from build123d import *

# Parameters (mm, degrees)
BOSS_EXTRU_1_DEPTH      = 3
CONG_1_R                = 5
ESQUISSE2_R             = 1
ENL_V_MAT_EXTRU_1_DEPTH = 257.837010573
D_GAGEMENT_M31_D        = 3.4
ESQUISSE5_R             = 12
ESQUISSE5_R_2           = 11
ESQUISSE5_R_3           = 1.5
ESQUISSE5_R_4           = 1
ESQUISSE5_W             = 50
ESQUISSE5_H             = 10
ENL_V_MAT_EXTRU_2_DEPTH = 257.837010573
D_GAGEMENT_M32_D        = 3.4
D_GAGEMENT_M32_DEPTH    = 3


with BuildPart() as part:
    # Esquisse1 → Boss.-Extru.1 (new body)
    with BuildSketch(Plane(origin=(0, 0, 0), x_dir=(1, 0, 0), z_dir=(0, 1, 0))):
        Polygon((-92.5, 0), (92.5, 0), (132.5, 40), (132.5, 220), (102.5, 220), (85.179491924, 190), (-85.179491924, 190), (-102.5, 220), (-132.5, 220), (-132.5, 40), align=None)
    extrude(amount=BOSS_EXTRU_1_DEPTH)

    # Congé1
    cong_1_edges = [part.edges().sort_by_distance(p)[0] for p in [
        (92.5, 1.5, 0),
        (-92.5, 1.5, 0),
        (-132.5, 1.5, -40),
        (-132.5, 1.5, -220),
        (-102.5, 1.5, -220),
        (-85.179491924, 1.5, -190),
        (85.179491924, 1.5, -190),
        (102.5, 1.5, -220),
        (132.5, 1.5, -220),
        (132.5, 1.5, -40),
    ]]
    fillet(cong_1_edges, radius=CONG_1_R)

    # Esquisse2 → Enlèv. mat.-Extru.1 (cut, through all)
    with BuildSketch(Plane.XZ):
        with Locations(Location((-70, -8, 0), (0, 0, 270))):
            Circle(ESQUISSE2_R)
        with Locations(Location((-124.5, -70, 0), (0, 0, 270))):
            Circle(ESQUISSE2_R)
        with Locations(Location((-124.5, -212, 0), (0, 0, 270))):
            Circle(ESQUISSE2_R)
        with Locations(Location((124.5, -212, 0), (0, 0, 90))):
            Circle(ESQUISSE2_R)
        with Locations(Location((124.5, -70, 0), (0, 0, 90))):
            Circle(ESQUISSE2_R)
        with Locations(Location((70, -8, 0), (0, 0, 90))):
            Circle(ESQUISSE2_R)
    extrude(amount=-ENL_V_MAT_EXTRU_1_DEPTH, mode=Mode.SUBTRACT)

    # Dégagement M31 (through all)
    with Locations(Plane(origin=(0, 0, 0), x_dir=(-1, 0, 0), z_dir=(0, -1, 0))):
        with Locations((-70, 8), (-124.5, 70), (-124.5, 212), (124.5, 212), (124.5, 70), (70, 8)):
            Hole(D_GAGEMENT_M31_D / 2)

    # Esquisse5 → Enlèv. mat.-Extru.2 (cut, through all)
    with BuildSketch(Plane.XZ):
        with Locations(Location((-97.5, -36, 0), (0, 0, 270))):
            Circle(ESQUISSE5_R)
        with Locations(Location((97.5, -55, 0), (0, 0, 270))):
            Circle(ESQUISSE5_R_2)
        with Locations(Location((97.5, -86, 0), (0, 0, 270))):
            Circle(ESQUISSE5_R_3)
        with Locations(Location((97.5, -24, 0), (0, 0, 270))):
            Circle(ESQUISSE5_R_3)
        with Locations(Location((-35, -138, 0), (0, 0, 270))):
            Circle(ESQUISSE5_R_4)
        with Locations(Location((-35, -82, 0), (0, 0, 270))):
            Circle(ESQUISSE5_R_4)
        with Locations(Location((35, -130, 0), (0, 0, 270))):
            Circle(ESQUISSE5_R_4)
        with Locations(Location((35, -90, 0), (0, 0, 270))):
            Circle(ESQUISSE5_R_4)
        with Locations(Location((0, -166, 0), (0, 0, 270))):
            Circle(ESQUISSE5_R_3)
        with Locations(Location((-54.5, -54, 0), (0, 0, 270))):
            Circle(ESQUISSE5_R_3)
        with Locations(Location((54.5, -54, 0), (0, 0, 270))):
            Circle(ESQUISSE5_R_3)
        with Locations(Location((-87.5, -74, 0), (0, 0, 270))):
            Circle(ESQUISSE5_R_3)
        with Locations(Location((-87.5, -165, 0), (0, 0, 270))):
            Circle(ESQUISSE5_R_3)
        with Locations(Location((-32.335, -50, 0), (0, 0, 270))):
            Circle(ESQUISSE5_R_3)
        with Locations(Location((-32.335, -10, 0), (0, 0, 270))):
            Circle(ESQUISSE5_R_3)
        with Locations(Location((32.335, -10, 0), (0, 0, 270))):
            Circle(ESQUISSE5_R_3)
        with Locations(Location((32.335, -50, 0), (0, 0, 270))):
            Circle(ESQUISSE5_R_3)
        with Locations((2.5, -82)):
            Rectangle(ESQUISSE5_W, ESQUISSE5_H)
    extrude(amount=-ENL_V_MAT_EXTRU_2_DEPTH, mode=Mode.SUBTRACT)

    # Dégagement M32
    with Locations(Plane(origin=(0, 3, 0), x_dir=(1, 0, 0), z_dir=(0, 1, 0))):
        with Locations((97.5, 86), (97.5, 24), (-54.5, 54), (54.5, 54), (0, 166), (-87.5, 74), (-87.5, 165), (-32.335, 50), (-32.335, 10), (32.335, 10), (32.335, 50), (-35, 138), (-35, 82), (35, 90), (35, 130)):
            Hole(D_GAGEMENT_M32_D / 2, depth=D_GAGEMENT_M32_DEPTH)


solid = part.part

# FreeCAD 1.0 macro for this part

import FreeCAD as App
import Part
import Sketcher

V = App.Vector
Q = App.Units.Quantity


def edges_at(feature, points):
    """Names of the edges that pass closest to the given points."""
    edges = feature.Shape.Edges
    near = lambda p: min(range(len(edges)), key=lambda i: edges[i].distToShape(Part.Vertex(*p))[0])
    return sorted({f"Edge{near(p) + 1}" for p in points})


def add_polygon(sketch, points):
    """Adds a closed chain of lines whose ends are joined by coincident constraints."""
    first, n = sketch.GeometryCount, len(points)
    for a, b in zip(points, points[1:] + points[:1]):
        sketch.addGeometry(Part.LineSegment(App.Vector(*a, 0), App.Vector(*b, 0)), False)
    for i in range(n):
        sketch.addConstraint(Sketcher.Constraint("Coincident", first + i, 2, first + (i + 1) % n, 1))

doc = App.newDocument("Part")
body = doc.addObject("PartDesign::Body", "Body")

# Sketch on XZ plane
sketch1 = body.newObject("Sketcher::SketchObject", "Sketch")
sketch1.AttachmentSupport = (doc.getObject("XZ_Plane"), [""])
sketch1.MapMode = "FlatFace"
add_polygon(sketch1, [(-92, 0), (92, 0), (132, -40), (132, -220), (102, -220), (85, -190), (-85, -190), (-102, -220), (-132, -220), (-132, -40)])  # lines 0-9
sketch1.addConstraint([
    Sketcher.Constraint("Horizontal", 0),
    Sketcher.Constraint("Vertical", 2),
    Sketcher.Constraint("Horizontal", 3),
    Sketcher.Constraint("Horizontal", 5),
    Sketcher.Constraint("Horizontal", 7),
    Sketcher.Constraint("Vertical", 8),
    Sketcher.Constraint("Symmetric", 0, 2, 9, 2, -1, 1),
    Sketcher.Constraint("Symmetric", 3, 2, 6, 2, -2),
    Sketcher.Constraint("Symmetric", 1, 2, 8, 2, -2),
    Sketcher.Constraint("Perpendicular", 1, 9),
    Sketcher.Constraint("Equal", 4, 6),
    Sketcher.Constraint("DistanceX", 0, 1, 0, 2, 185.0),
    Sketcher.Constraint("DistanceX", 3, 2, 3, 1, 30.0),
    Sketcher.Constraint("DistanceY", 2, 2, 2, 1, 180.0),
    Sketcher.Constraint("Angle", 4, Q("120 deg")),
    Sketcher.Constraint("DistanceY", 1, 2, -1, 1, 40.0),
    Sketcher.Constraint("DistanceY", 4, 2, -1, 1, 190.0),
])
pad1 = body.newObject("PartDesign::Pad", "Pad")
pad1.Profile = sketch1
pad1.Length = 3
pad1.Reversed = True
doc.recompute()

fillet = body.newObject("PartDesign::Fillet", "Fillet")
fillet.Base = (pad1, edges_at(pad1, [
    (92.5, 1.5, 0),
    (-92.5, 1.5, 0),
    (-132.5, 1.5, -40),
    (-132.5, 1.5, -220),
    (-102.5, 1.5, -220),
    (-85.179, 1.5, -190),
    (85.179, 1.5, -190),
    (102.5, 1.5, -220),
    (132.5, 1.5, -220),
    (132.5, 1.5, -40),
]))
fillet.Radius = 5

# Sketch on XZ plane
sketch2 = body.newObject("Sketcher::SketchObject", "Sketch001")
sketch2.AttachmentSupport = (doc.getObject("XZ_Plane"), [""])
sketch2.MapMode = "FlatFace"
sketch2.addGeometry([
    Part.Circle(V(-70, -8, 0), V(0, 0, 1), 1),  # 0
    Part.Circle(V(-124.5, -70, 0), V(0, 0, 1), 1),  # 1
    Part.Circle(V(-124.5, -212, 0), V(0, 0, 1), 1),  # 2
    Part.Circle(V(124.5, -212, 0), V(0, 0, 1), 1),  # 3
    Part.Circle(V(124.5, -70, 0), V(0, 0, 1), 1),  # 4
    Part.Circle(V(70, -8, 0), V(0, 0, 1), 1),  # 5
], False)
sketch2.addConstraint([
    Sketcher.Constraint("Equal", 0, 1),
    Sketcher.Constraint("Equal", 1, 2),
    Sketcher.Constraint("Equal", 2, 3),
    Sketcher.Constraint("Equal", 3, 4),
    Sketcher.Constraint("Equal", 4, 5),
    Sketcher.Constraint("Symmetric", 2, 3, 3, 3, -2),
    Sketcher.Constraint("Symmetric", 1, 3, 4, 3, -2),
    Sketcher.Constraint("Symmetric", 0, 3, 5, 3, -2),
    Sketcher.Constraint("Vertical", 1, 3, 2, 3),
    Sketcher.Constraint("Diameter", 0, 2.0),
    Sketcher.Constraint("DistanceX", 0, 3, -1, 1, 70.0),
    Sketcher.Constraint("DistanceY", 0, 3, -1, 1, 8.0),
    Sketcher.Constraint("DistanceY", 1, 3, -1, 1, 70.0),
    Sketcher.Constraint("DistanceY", 2, 3, -1, 1, 212.0),
    Sketcher.Constraint("DistanceX", 2, 3, 3, 3, 249.0),
])
pocket1 = body.newObject("PartDesign::Pocket", "Pocket")
pocket1.Profile = sketch2
pocket1.Type = "ThroughAll"

# Sketch on XZ plane
sketch3 = body.newObject("Sketcher::SketchObject", "Sketch002")
sketch3.AttachmentSupport = (doc.getObject("XZ_Plane"), [""])
sketch3.MapMode = "FlatFace"
sketch3.addGeometry([
    Part.Circle(V(70, -8, 0), V(0, 0, 1), 1.7),  # 0
    Part.Circle(V(124.5, -70, 0), V(0, 0, 1), 1.7),  # 1
    Part.Circle(V(124.5, -212, 0), V(0, 0, 1), 1.7),  # 2
    Part.Circle(V(-124.5, -212, 0), V(0, 0, 1), 1.7),  # 3
    Part.Circle(V(-124.5, -70, 0), V(0, 0, 1), 1.7),  # 4
    Part.Circle(V(-70, -8, 0), V(0, 0, 1), 1.7),  # 5
], False)
sketch3.addConstraint([
    Sketcher.Constraint("Equal", 0, 1),
    Sketcher.Constraint("Equal", 1, 2),
    Sketcher.Constraint("Equal", 2, 3),
    Sketcher.Constraint("Equal", 3, 4),
    Sketcher.Constraint("Equal", 4, 5),
    Sketcher.Constraint("Symmetric", 2, 3, 3, 3, -2),
    Sketcher.Constraint("Symmetric", 1, 3, 4, 3, -2),
    Sketcher.Constraint("Symmetric", 0, 3, 5, 3, -2),
    Sketcher.Constraint("Vertical", 1, 3, 2, 3),
    Sketcher.Constraint("Diameter", 0, 3.4),
    Sketcher.Constraint("DistanceX", -1, 1, 0, 3, 70.0),
    Sketcher.Constraint("DistanceY", 0, 3, -1, 1, 8.0),
    Sketcher.Constraint("DistanceY", 1, 3, -1, 1, 70.0),
    Sketcher.Constraint("DistanceY", 2, 3, -1, 1, 212.0),
    Sketcher.Constraint("DistanceX", 3, 3, 2, 3, 249.0),
])
doc.recompute()
hole = body.newObject("PartDesign::Hole", "Hole")
hole.Profile = sketch3
hole.ThreadType = "None"
hole.Diameter = 3.4
hole.DepthType = "ThroughAll"

# Sketch on XZ plane
sketch4 = body.newObject("Sketcher::SketchObject", "Sketch003")
sketch4.AttachmentSupport = (doc.getObject("XZ_Plane"), [""])
sketch4.MapMode = "FlatFace"
sketch4.addGeometry(Part.Circle(V(-97.5, -36, 0), V(0, 0, 1), 12), False)  # 0
sketch4.addGeometry(Part.Circle(V(97.5, -55, 0), V(0, 0, 1), 11), False)  # 1
sketch4.addGeometry(Part.Circle(V(97.5, -86, 0), V(0, 0, 1), 1.5), False)  # 2
sketch4.addGeometry(Part.Circle(V(97.5, -24, 0), V(0, 0, 1), 1.5), False)  # 3
sketch4.addGeometry(Part.Circle(V(-35, -138, 0), V(0, 0, 1), 1), False)  # 4
sketch4.addGeometry(Part.Circle(V(-35, -82, 0), V(0, 0, 1), 1), False)  # 5
sketch4.addGeometry(Part.Circle(V(35, -130, 0), V(0, 0, 1), 1), False)  # 6
sketch4.addGeometry(Part.Circle(V(35, -90, 0), V(0, 0, 1), 1), False)  # 7
sketch4.addGeometry(Part.Circle(V(0, -166, 0), V(0, 0, 1), 1.5), False)  # 8
sketch4.addGeometry(Part.Circle(V(-54.5, -54, 0), V(0, 0, 1), 1.5), False)  # 9
sketch4.addGeometry(Part.Circle(V(54.5, -54, 0), V(0, 0, 1), 1.5), False)  # 10
sketch4.addGeometry(Part.Circle(V(-87.5, -74, 0), V(0, 0, 1), 1.5), False)  # 11
sketch4.addGeometry(Part.Circle(V(-87.5, -165, 0), V(0, 0, 1), 1.5), False)  # 12
sketch4.addGeometry(Part.Circle(V(-32.3, -50, 0), V(0, 0, 1), 1.5), False)  # 13
sketch4.addGeometry(Part.Circle(V(-32.3, -10, 0), V(0, 0, 1), 1.5), False)  # 14
sketch4.addGeometry(Part.Circle(V(32.3, -10, 0), V(0, 0, 1), 1.5), False)  # 15
sketch4.addGeometry(Part.Circle(V(32.3, -50, 0), V(0, 0, 1), 1.5), False)  # 16
add_polygon(sketch4, [(-22.5, -77), (-22.5, -87), (27.5, -87), (27.5, -77)])  # lines 17-20
sketch4.addConstraint([
    Sketcher.Constraint("Vertical", 17),
    Sketcher.Constraint("Horizontal", 18),
    Sketcher.Constraint("Vertical", 19),
    Sketcher.Constraint("Horizontal", 20),
    Sketcher.Constraint("Equal", 2, 3),
    Sketcher.Constraint("Equal", 4, 5),
    Sketcher.Constraint("Equal", 5, 6),
    Sketcher.Constraint("Equal", 6, 7),
    Sketcher.Constraint("Equal", 3, 8),
    Sketcher.Constraint("Equal", 8, 9),
    Sketcher.Constraint("Equal", 9, 10),
    Sketcher.Constraint("Equal", 10, 11),
    Sketcher.Constraint("Equal", 11, 12),
    Sketcher.Constraint("Equal", 12, 13),
    Sketcher.Constraint("Equal", 13, 14),
    Sketcher.Constraint("Equal", 14, 15),
    Sketcher.Constraint("Equal", 15, 16),
    Sketcher.Constraint("Symmetric", 9, 3, 10, 3, -2),
    Sketcher.Constraint("Symmetric", 14, 3, 15, 3, -2),
    Sketcher.Constraint("Symmetric", 13, 3, 16, 3, -2),
    Sketcher.Constraint("PointOnObject", 8, 3, -2),
    Sketcher.Constraint("Vertical", 1, 3, 2, 3),
    Sketcher.Constraint("Vertical", 2, 3, 3, 3),
    Sketcher.Constraint("Vertical", 4, 3, 5, 3),
    Sketcher.Constraint("Vertical", 6, 3, 7, 3),
    Sketcher.Constraint("Vertical", 11, 3, 12, 3),
    Sketcher.Constraint("Vertical", 13, 3, 14, 3),
    Sketcher.Constraint("Diameter", 0, 24.0),
    Sketcher.Constraint("Diameter", 1, 22.0),
    Sketcher.Constraint("Diameter", 2, 3.0),
    Sketcher.Constraint("Diameter", 4, 2.0),
    Sketcher.Constraint("DistanceX", 18, 1, 18, 2, 50.0),
    Sketcher.Constraint("DistanceY", 17, 2, 17, 1, 10.0),
    Sketcher.Constraint("DistanceY", 0, 3, -1, 1, 36.0),
    Sketcher.Constraint("DistanceY", 1, 3, -1, 1, 55.0),
    Sketcher.Constraint("DistanceY", 2, 3, -1, 1, 86.0),
    Sketcher.Constraint("DistanceY", 3, 3, -1, 1, 24.0),
    Sketcher.Constraint("DistanceX", 4, 3, -1, 1, 35.0),
    Sketcher.Constraint("DistanceY", 4, 3, -1, 1, 138.0),
    Sketcher.Constraint("DistanceY", 5, 3, -1, 1, 82.0),
    Sketcher.Constraint("DistanceX", -1, 1, 6, 3, 35.0),
    Sketcher.Constraint("DistanceY", 6, 3, -1, 1, 130.0),
    Sketcher.Constraint("DistanceY", 7, 3, -1, 1, 90.0),
    Sketcher.Constraint("DistanceY", 8, 3, -1, 1, 166.0),
    Sketcher.Constraint("DistanceY", 9, 3, -1, 1, 54.0),
    Sketcher.Constraint("DistanceY", 11, 3, -1, 1, 74.0),
    Sketcher.Constraint("DistanceY", 12, 3, -1, 1, 165.0),
    Sketcher.Constraint("DistanceY", 13, 3, -1, 1, 50.0),
    Sketcher.Constraint("DistanceY", 14, 3, -1, 1, 10.0),
    Sketcher.Constraint("DistanceY", 17, 2, -1, 1, 87.0),
    Sketcher.Constraint("DistanceX", 0, 3, 1, 3, 195.0),
    Sketcher.Constraint("DistanceX", 0, 3, 9, 3, 43.0),
    Sketcher.Constraint("DistanceX", 10, 3, 1, 3, 43.0),
    Sketcher.Constraint("DistanceX", 11, 3, 9, 3, 33.0),
    Sketcher.Constraint("DistanceX", 9, 3, 17, 2, 32.0),
    Sketcher.Constraint("DistanceX", 14, 3, 15, 3, 64.67),
])
pocket2 = body.newObject("PartDesign::Pocket", "Pocket001")
pocket2.Profile = sketch4
pocket2.Type = "ThroughAll"

# Sketch on XZ plane
sketch5 = body.newObject("Sketcher::SketchObject", "Sketch004")
sketch5.AttachmentSupport = (doc.getObject("XZ_Plane"), [""])
sketch5.MapMode = "FlatFace"
sketch5.AttachmentOffset = App.Placement(V(0, 0, -3), App.Rotation())
sketch5.addGeometry([
    Part.Circle(V(97.5, -86, 0), V(0, 0, 1), 1.7),  # 0
    Part.Circle(V(97.5, -24, 0), V(0, 0, 1), 1.7),  # 1
    Part.Circle(V(-54.5, -54, 0), V(0, 0, 1), 1.7),  # 2
    Part.Circle(V(54.5, -54, 0), V(0, 0, 1), 1.7),  # 3
    Part.Circle(V(0, -166, 0), V(0, 0, 1), 1.7),  # 4
    Part.Circle(V(-87.5, -74, 0), V(0, 0, 1), 1.7),  # 5
    Part.Circle(V(-87.5, -165, 0), V(0, 0, 1), 1.7),  # 6
    Part.Circle(V(-32.3, -50, 0), V(0, 0, 1), 1.7),  # 7
    Part.Circle(V(-32.3, -10, 0), V(0, 0, 1), 1.7),  # 8
    Part.Circle(V(32.3, -10, 0), V(0, 0, 1), 1.7),  # 9
    Part.Circle(V(32.3, -50, 0), V(0, 0, 1), 1.7),  # 10
    Part.Circle(V(-35, -138, 0), V(0, 0, 1), 1.7),  # 11
    Part.Circle(V(-35, -82, 0), V(0, 0, 1), 1.7),  # 12
    Part.Circle(V(35, -90, 0), V(0, 0, 1), 1.7),  # 13
    Part.Circle(V(35, -130, 0), V(0, 0, 1), 1.7),  # 14
], False)
sketch5.addConstraint([
    Sketcher.Constraint("Equal", 0, 1),
    Sketcher.Constraint("Equal", 1, 2),
    Sketcher.Constraint("Equal", 2, 3),
    Sketcher.Constraint("Equal", 3, 4),
    Sketcher.Constraint("Equal", 4, 5),
    Sketcher.Constraint("Equal", 5, 6),
    Sketcher.Constraint("Equal", 6, 7),
    Sketcher.Constraint("Equal", 7, 8),
    Sketcher.Constraint("Equal", 8, 9),
    Sketcher.Constraint("Equal", 9, 10),
    Sketcher.Constraint("Equal", 10, 11),
    Sketcher.Constraint("Equal", 11, 12),
    Sketcher.Constraint("Equal", 12, 13),
    Sketcher.Constraint("Equal", 13, 14),
    Sketcher.Constraint("Symmetric", 2, 3, 3, 3, -2),
    Sketcher.Constraint("Symmetric", 8, 3, 9, 3, -2),
    Sketcher.Constraint("Symmetric", 7, 3, 10, 3, -2),
    Sketcher.Constraint("PointOnObject", 4, 3, -2),
    Sketcher.Constraint("Vertical", 0, 3, 1, 3),
    Sketcher.Constraint("Vertical", 5, 3, 6, 3),
    Sketcher.Constraint("Vertical", 7, 3, 8, 3),
    Sketcher.Constraint("Vertical", 11, 3, 12, 3),
    Sketcher.Constraint("Vertical", 13, 3, 14, 3),
    Sketcher.Constraint("Diameter", 0, 3.4),
    Sketcher.Constraint("DistanceY", 0, 3, -1, 1, 86.0),
    Sketcher.Constraint("DistanceY", 1, 3, -1, 1, 24.0),
    Sketcher.Constraint("DistanceY", 2, 3, -1, 1, 54.0),
    Sketcher.Constraint("DistanceY", 4, 3, -1, 1, 166.0),
    Sketcher.Constraint("DistanceY", 5, 3, -1, 1, 74.0),
    Sketcher.Constraint("DistanceY", 6, 3, -1, 1, 165.0),
    Sketcher.Constraint("DistanceY", 7, 3, -1, 1, 50.0),
    Sketcher.Constraint("DistanceY", 8, 3, -1, 1, 10.0),
    Sketcher.Constraint("DistanceX", 11, 3, -1, 1, 35.0),
    Sketcher.Constraint("DistanceY", 11, 3, -1, 1, 138.0),
    Sketcher.Constraint("DistanceY", 12, 3, -1, 1, 82.0),
    Sketcher.Constraint("DistanceX", -1, 1, 13, 3, 35.0),
    Sketcher.Constraint("DistanceY", 13, 3, -1, 1, 90.0),
    Sketcher.Constraint("DistanceY", 14, 3, -1, 1, 130.0),
    Sketcher.Constraint("DistanceX", 2, 3, 1, 3, 152.0),
    Sketcher.Constraint("DistanceX", 3, 3, 1, 3, 43.0),
    Sketcher.Constraint("DistanceX", 5, 3, 2, 3, 33.0),
    Sketcher.Constraint("DistanceX", 8, 3, 9, 3, 64.67),
])
doc.recompute()
hole2 = body.newObject("PartDesign::Hole", "Hole001")
hole2.Profile = sketch5
hole2.ThreadType = "None"
hole2.Diameter = 3.4
hole2.DepthType = "Dimension"
hole2.Depth = 3
hole2.DrillPoint = "Flat"
hole2.Reversed = True

doc.recompute()
